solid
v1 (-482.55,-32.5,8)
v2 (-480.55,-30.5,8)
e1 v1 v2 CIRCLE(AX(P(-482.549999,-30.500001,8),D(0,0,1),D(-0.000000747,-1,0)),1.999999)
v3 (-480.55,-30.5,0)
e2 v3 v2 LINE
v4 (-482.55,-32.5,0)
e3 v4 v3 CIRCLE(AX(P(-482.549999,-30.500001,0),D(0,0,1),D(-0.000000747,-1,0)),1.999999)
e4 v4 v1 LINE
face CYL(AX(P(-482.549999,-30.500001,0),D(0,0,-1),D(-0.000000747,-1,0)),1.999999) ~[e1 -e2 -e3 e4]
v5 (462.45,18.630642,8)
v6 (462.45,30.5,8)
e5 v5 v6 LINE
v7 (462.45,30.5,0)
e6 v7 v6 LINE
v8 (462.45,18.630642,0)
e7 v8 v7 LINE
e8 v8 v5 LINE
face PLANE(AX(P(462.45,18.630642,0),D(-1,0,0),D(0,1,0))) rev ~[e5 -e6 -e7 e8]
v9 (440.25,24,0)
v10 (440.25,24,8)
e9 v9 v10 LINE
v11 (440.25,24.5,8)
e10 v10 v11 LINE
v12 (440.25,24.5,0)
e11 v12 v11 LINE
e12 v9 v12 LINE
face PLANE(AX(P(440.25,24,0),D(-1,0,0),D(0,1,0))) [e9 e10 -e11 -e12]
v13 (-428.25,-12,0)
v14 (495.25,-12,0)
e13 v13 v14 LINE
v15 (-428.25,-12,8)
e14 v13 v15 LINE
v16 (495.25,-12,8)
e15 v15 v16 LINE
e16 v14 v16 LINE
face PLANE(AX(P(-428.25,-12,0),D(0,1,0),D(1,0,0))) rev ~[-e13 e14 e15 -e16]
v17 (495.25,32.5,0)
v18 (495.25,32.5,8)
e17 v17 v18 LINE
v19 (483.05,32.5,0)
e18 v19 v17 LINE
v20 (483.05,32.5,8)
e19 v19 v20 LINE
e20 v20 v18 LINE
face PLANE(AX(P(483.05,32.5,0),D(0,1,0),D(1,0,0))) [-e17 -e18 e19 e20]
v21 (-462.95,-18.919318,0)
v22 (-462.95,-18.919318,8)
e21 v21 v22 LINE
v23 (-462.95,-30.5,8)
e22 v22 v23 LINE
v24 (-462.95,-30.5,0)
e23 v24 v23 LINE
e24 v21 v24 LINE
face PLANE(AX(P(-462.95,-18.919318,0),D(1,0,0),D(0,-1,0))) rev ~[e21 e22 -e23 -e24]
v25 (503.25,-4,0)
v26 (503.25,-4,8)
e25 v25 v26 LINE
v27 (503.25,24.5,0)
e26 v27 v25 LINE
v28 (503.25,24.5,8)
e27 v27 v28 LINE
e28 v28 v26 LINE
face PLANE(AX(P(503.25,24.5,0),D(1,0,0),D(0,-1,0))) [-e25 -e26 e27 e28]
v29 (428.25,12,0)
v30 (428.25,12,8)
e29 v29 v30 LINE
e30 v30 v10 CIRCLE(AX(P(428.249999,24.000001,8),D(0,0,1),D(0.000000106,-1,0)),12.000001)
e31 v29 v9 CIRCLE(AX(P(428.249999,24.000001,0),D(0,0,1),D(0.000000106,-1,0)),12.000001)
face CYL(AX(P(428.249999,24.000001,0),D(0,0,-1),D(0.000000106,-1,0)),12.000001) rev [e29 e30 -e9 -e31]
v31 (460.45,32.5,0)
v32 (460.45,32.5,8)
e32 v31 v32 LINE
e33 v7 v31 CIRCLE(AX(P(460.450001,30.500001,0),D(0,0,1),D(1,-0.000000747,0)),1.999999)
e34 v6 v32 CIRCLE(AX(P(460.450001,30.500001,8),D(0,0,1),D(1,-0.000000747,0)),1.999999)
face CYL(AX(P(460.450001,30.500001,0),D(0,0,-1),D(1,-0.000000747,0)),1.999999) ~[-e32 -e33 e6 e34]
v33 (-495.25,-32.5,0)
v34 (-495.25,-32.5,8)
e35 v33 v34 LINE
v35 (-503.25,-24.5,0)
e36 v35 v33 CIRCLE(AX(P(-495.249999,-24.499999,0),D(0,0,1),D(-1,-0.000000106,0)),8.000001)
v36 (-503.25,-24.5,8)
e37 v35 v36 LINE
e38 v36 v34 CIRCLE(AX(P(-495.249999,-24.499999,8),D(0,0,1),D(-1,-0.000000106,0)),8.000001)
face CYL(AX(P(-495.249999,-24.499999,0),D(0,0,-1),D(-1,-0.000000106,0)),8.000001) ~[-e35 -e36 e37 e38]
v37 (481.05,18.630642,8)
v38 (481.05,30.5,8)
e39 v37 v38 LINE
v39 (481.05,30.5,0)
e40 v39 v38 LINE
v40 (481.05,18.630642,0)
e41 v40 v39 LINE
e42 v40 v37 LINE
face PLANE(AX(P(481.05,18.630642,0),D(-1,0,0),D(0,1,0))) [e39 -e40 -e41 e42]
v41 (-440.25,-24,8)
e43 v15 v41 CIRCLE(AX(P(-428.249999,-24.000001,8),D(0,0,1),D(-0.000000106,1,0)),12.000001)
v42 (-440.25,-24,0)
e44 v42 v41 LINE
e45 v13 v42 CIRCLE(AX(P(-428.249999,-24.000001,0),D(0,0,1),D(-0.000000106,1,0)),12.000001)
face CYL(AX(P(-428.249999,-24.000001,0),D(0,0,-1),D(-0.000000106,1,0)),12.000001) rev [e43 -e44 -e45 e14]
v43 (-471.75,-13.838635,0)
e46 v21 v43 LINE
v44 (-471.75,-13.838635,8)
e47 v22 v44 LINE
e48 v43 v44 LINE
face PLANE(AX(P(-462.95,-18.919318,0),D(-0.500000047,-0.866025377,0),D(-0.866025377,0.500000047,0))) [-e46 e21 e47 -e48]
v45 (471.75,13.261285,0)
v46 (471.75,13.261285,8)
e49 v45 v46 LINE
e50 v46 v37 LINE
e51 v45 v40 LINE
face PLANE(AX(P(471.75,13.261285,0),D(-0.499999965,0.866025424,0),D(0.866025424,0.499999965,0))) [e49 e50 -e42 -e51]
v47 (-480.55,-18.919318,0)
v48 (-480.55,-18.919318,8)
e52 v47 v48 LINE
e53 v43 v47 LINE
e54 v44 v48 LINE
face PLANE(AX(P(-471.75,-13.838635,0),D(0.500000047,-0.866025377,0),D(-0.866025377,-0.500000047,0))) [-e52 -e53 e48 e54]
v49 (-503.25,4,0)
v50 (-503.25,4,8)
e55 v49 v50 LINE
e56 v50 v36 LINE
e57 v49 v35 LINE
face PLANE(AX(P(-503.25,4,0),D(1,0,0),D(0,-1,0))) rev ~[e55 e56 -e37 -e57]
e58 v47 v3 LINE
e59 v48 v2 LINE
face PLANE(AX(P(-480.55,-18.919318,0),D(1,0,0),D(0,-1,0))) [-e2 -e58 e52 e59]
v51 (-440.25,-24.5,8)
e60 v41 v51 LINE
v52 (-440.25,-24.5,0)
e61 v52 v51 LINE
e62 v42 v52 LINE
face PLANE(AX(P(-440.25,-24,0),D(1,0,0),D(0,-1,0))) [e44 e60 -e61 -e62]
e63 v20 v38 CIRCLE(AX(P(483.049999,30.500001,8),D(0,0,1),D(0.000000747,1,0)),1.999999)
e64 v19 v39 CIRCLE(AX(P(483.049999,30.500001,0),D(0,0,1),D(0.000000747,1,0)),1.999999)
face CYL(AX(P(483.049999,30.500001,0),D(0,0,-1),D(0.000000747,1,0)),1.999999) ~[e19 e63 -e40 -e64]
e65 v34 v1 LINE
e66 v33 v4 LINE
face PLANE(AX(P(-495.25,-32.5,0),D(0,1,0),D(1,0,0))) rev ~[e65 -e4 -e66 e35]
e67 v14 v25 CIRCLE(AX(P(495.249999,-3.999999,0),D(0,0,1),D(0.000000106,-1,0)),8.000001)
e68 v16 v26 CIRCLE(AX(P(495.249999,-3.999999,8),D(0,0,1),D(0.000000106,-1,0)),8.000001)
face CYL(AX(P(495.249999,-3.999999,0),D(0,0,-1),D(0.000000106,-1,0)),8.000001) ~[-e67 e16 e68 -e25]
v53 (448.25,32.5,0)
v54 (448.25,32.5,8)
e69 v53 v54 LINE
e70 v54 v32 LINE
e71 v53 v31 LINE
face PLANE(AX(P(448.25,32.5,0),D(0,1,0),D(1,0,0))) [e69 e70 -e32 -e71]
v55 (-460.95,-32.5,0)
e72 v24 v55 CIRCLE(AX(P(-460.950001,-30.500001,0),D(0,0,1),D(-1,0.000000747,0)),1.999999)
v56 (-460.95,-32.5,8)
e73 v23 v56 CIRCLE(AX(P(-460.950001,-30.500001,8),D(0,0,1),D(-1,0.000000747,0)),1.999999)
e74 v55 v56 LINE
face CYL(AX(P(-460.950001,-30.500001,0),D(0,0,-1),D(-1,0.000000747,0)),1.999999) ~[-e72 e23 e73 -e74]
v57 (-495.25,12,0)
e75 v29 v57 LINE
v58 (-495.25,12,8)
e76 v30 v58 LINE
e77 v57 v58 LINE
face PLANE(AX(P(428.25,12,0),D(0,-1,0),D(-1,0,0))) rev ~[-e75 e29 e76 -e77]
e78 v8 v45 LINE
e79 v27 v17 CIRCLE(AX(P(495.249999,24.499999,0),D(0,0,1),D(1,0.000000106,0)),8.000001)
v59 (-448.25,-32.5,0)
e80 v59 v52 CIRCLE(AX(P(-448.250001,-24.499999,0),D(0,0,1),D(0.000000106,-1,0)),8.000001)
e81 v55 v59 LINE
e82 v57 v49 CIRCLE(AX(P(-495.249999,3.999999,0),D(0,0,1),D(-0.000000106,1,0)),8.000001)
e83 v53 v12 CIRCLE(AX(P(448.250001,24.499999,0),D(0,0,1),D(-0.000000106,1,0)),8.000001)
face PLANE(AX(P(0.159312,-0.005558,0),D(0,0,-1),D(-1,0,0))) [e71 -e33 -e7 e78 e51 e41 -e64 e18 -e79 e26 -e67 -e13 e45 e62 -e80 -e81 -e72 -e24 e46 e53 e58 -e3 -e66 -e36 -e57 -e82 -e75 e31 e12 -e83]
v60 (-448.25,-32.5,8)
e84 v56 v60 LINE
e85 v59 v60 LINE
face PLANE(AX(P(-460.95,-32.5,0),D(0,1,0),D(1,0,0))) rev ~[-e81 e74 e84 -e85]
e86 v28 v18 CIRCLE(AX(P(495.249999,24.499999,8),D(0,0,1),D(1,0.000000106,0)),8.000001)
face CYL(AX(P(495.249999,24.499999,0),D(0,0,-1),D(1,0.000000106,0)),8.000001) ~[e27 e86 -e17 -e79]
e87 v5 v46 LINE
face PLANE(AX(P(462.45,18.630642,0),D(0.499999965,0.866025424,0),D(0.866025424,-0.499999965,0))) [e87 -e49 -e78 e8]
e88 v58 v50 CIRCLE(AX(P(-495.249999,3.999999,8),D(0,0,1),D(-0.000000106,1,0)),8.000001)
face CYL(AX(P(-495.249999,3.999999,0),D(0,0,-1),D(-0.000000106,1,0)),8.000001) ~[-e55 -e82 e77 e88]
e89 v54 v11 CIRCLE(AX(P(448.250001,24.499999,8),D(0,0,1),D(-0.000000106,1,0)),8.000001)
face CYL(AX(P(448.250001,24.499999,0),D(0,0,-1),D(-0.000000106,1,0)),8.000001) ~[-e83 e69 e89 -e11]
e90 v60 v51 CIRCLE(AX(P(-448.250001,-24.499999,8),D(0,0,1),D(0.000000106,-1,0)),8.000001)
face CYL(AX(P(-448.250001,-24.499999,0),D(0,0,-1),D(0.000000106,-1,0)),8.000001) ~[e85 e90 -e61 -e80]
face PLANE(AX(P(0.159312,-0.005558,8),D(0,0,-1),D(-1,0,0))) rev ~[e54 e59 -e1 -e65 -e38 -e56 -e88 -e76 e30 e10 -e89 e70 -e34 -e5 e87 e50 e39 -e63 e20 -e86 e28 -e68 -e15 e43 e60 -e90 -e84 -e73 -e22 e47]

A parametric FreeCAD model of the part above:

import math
import FreeCAD as App
import Part
import Sketcher
Q = App.Units.Quantity

doc = App.newDocument("Part")
body = doc.addObject("PartDesign::Body", "Body")

# Sketch on XY plane
sketch1 = doc.addObject("Sketcher::SketchObject", "Sketch")
body.addObject(sketch1)
sketch1.AttachmentSupport = (doc.XY_Plane, [""])
sketch1.MapMode = "FlatFace"
sketch1.addGeometry(Part.LineSegment(App.Vector(428.2, 12, 0), App.Vector(-495.2, 12, 0)), False)
sketch1.addGeometry(Part.ArcOfCircle(Part.Circle(App.Vector(-495.2, 4, 0), App.Vector(0, 0, 1), 8), math.radians(90), math.radians(180)), False)
sketch1.addGeometry(Part.LineSegment(App.Vector(-503.2, 4, 0), App.Vector(-503.2, -24.5, 0)), False)
sketch1.addGeometry(Part.ArcOfCircle(Part.Circle(App.Vector(-495.2, -24.5, 0), App.Vector(0, 0, 1), 8), math.radians(-180), math.radians(-90)), False)
sketch1.addGeometry(Part.LineSegment(App.Vector(-495.2, -32.5, 0), App.Vector(-482.6, -32.5, 0)), False)
sketch1.addGeometry(Part.ArcOfCircle(Part.Circle(App.Vector(-482.5, -30.5, 0), App.Vector(0, 0, 1), 2), math.radians(-90), math.radians(0)), False)
sketch1.addGeometry(Part.LineSegment(App.Vector(-480.6, -30.5, 0), App.Vector(-480.6, -18.9, 0)), False)
sketch1.addGeometry(Part.LineSegment(App.Vector(-480.6, -18.9, 0), App.Vector(-471.8, -13.8, 0)), False)
sketch1.addGeometry(Part.LineSegment(App.Vector(-471.8, -13.8, 0), App.Vector(-462.9, -18.9, 0)), False)
sketch1.addGeometry(Part.LineSegment(App.Vector(-462.9, -18.9, 0), App.Vector(-462.9, -30.5, 0)), False)
sketch1.addGeometry(Part.ArcOfCircle(Part.Circle(App.Vector(-461, -30.5, 0), App.Vector(0, 0, 1), 2), math.radians(180), math.radians(270)), False)
sketch1.addGeometry(Part.LineSegment(App.Vector(-460.9, -32.5, 0), App.Vector(-448.2, -32.5, 0)), False)
sketch1.addGeometry(Part.ArcOfCircle(Part.Circle(App.Vector(-448.3, -24.5, 0), App.Vector(0, 0, 1), 8), math.radians(-90), math.radians(0)), False)
sketch1.addGeometry(Part.LineSegment(App.Vector(-440.2, -24.5, 0), App.Vector(-440.2, -24, 0)), False)
sketch1.addGeometry(Part.ArcOfCircle(Part.Circle(App.Vector(-428.2, -24, 0), App.Vector(0, 0, 1), 12), math.radians(90), math.radians(180)), False)
sketch1.addGeometry(Part.LineSegment(App.Vector(-428.2, -12, 0), App.Vector(495.2, -12, 0)), False)
sketch1.addGeometry(Part.ArcOfCircle(Part.Circle(App.Vector(495.2, -4, 0), App.Vector(0, 0, 1), 8), math.radians(-90), math.radians(0)), False)
sketch1.addGeometry(Part.LineSegment(App.Vector(503.2, -4, 0), App.Vector(503.2, 24.5, 0)), False)
sketch1.addGeometry(Part.ArcOfCircle(Part.Circle(App.Vector(495.2, 24.5, 0), App.Vector(0, 0, 1), 8), math.radians(0), math.radians(90)), False)
sketch1.addGeometry(Part.LineSegment(App.Vector(495.2, 32.5, 0), App.Vector(483.1, 32.5, 0)), False)
sketch1.addGeometry(Part.ArcOfCircle(Part.Circle(App.Vector(483, 30.5, 0), App.Vector(0, 0, 1), 2), math.radians(90), math.radians(180)), False)
sketch1.addGeometry(Part.LineSegment(App.Vector(481.1, 30.5, 0), App.Vector(481.1, 18.6, 0)), False)
sketch1.addGeometry(Part.LineSegment(App.Vector(481.1, 18.6, 0), App.Vector(471.8, 13.3, 0)), False)
sketch1.addGeometry(Part.LineSegment(App.Vector(471.8, 13.3, 0), App.Vector(462.4, 18.6, 0)), False)
sketch1.addGeometry(Part.LineSegment(App.Vector(462.4, 18.6, 0), App.Vector(462.4, 30.5, 0)), False)
sketch1.addGeometry(Part.ArcOfCircle(Part.Circle(App.Vector(460.5, 30.5, 0), App.Vector(0, 0, 1), 2), math.radians(0), math.radians(90)), False)
sketch1.addGeometry(Part.LineSegment(App.Vector(460.4, 32.5, 0), App.Vector(448.2, 32.5, 0)), False)
sketch1.addGeometry(Part.ArcOfCircle(Part.Circle(App.Vector(448.3, 24.5, 0), App.Vector(0, 0, 1), 8), math.radians(90), math.radians(180)), False)
sketch1.addGeometry(Part.LineSegment(App.Vector(440.2, 24.5, 0), App.Vector(440.2, 24, 0)), False)
sketch1.addGeometry(Part.ArcOfCircle(Part.Circle(App.Vector(428.2, 24, 0), App.Vector(0, 0, 1), 12), math.radians(-90), math.radians(0)), False)
sketch1.addConstraint(Sketcher.Constraint("Tangent", 0, 2, 1, 1))
sketch1.addConstraint(Sketcher.Constraint("Tangent", 1, 2, 2, 1))
sketch1.addConstraint(Sketcher.Constraint("Tangent", 2, 2, 3, 1))
sketch1.addConstraint(Sketcher.Constraint("Tangent", 3, 2, 4, 1))
sketch1.addConstraint(Sketcher.Constraint("Tangent", 4, 2, 5, 1))
sketch1.addConstraint(Sketcher.Constraint("Tangent", 5, 2, 6, 1))
sketch1.addConstraint(Sketcher.Constraint("Coincident", 6, 2, 7, 1))
sketch1.addConstraint(Sketcher.Constraint("Coincident", 7, 2, 8, 1))
sketch1.addConstraint(Sketcher.Constraint("Coincident", 8, 2, 9, 1))
sketch1.addConstraint(Sketcher.Constraint("Tangent", 9, 2, 10, 1))
sketch1.addConstraint(Sketcher.Constraint("Tangent", 10, 2, 11, 1))
sketch1.addConstraint(Sketcher.Constraint("Tangent", 11, 2, 12, 1))
sketch1.addConstraint(Sketcher.Constraint("Tangent", 12, 2, 13, 1))
sketch1.addConstraint(Sketcher.Constraint("Tangent", 13, 2, 14, 2))
sketch1.addConstraint(Sketcher.Constraint("Tangent", 14, 1, 15, 1))
sketch1.addConstraint(Sketcher.Constraint("Tangent", 15, 2, 16, 1))
sketch1.addConstraint(Sketcher.Constraint("Tangent", 16, 2, 17, 1))
sketch1.addConstraint(Sketcher.Constraint("Tangent", 17, 2, 18, 1))
sketch1.addConstraint(Sketcher.Constraint("Tangent", 18, 2, 19, 1))
sketch1.addConstraint(Sketcher.Constraint("Tangent", 19, 2, 20, 1))
sketch1.addConstraint(Sketcher.Constraint("Tangent", 20, 2, 21, 1))
sketch1.addConstraint(Sketcher.Constraint("Coincident", 21, 2, 22, 1))
sketch1.addConstraint(Sketcher.Constraint("Coincident", 22, 2, 23, 1))
sketch1.addConstraint(Sketcher.Constraint("Coincident", 23, 2, 24, 1))
sketch1.addConstraint(Sketcher.Constraint("Tangent", 24, 2, 25, 1))
sketch1.addConstraint(Sketcher.Constraint("Tangent", 25, 2, 26, 1))
sketch1.addConstraint(Sketcher.Constraint("Tangent", 26, 2, 27, 1))
sketch1.addConstraint(Sketcher.Constraint("Tangent", 27, 2, 28, 1))
sketch1.addConstraint(Sketcher.Constraint("Tangent", 28, 2, 29, 2))
sketch1.addConstraint(Sketcher.Constraint("Tangent", 29, 1, 0, 1))
sketch1.addConstraint(Sketcher.Constraint("Horizontal", 0))
sketch1.addConstraint(Sketcher.Constraint("Vertical", 2))
sketch1.addConstraint(Sketcher.Constraint("Horizontal", 4))
sketch1.addConstraint(Sketcher.Constraint("Vertical", 6))
sketch1.addConstraint(Sketcher.Constraint("Vertical", 9))
sketch1.addConstraint(Sketcher.Constraint("Horizontal", 11))
sketch1.addConstraint(Sketcher.Constraint("Vertical", 13))
sketch1.addConstraint(Sketcher.Constraint("Horizontal", 15))
sketch1.addConstraint(Sketcher.Constraint("Vertical", 17))
sketch1.addConstraint(Sketcher.Constraint("Horizontal", 19))
sketch1.addConstraint(Sketcher.Constraint("Vertical", 21))
sketch1.addConstraint(Sketcher.Constraint("Vertical", 24))
sketch1.addConstraint(Sketcher.Constraint("Horizontal", 26))
sketch1.addConstraint(Sketcher.Constraint("Vertical", 28))
sketch1.addConstraint(Sketcher.Constraint("Equal", 1, 3))
sketch1.addConstraint(Sketcher.Constraint("Equal", 5, 10))
sketch1.addConstraint(Sketcher.Constraint("Equal", 3, 12))
sketch1.addConstraint(Sketcher.Constraint("Equal", 12, 16))
sketch1.addConstraint(Sketcher.Constraint("Equal", 16, 18))
sketch1.addConstraint(Sketcher.Constraint("Equal", 10, 20))
sketch1.addConstraint(Sketcher.Constraint("Equal", 20, 25))
sketch1.addConstraint(Sketcher.Constraint("Equal", 18, 27))
sketch1.addConstraint(Sketcher.Constraint("Equal", 14, 29))
sketch1.addConstraint(Sketcher.Constraint("Symmetric", 1, 3, 16, 3, -1, 1))
sketch1.addConstraint(Sketcher.Constraint("Symmetric", 12, 3, 27, 3, -1, 1))
sketch1.addConstraint(Sketcher.Constraint("Parallel", 7, 22))
sketch1.addConstraint(Sketcher.Constraint("Parallel", 8, 23))
sketch1.addConstraint(Sketcher.Constraint("Horizontal", 5, 3, 10, 3))
sketch1.addConstraint(Sketcher.Constraint("Horizontal", 20, 3, 25, 3))
sketch1.addConstraint(Sketcher.Constraint("Horizontal", 6, 2, 8, 2))
sketch1.addConstraint(Sketcher.Constraint("Horizontal", 21, 2, 23, 2))
sketch1.addConstraint(Sketcher.Constraint("Equal", 4, 11))
sketch1.addConstraint(Sketcher.Constraint("Equal", 19, 26))
sketch1.addConstraint(Sketcher.Constraint("Equal", 7, 8))
sketch1.addConstraint(Sketcher.Constraint("Radius", 1, Q("8.000001 mm")))
sketch1.addConstraint(Sketcher.Constraint("Radius", 5, Q("1.999999 mm")))
sketch1.addConstraint(Sketcher.Constraint("Radius", 14, Q("12.000001 mm")))
sketch1.addConstraint(Sketcher.Constraint("Angle", 7, Q("30.000003 deg")))
sketch1.addConstraint(Sketcher.Constraint("DistanceX", 0, 2, 0, 1, Q("923.5 mm")))
sketch1.addConstraint(Sketcher.Constraint("DistanceX", 4, 1, 4, 2, Q("12.7 mm")))
sketch1.addConstraint(Sketcher.Constraint("DistanceX", 19, 2, 19, 1, Q("12.2 mm")))
sketch1.addConstraint(Sketcher.Constraint("DistanceY", 2, 2, 2, 1, Q("28.5 mm")))
sketch1.addConstraint(Sketcher.Constraint("DistanceY", 13, 1, 13, 2, Q("0.5 mm")))
sketch1.addConstraint(Sketcher.Constraint("DistanceX", 3, 3, 12, 3, Q("46.999998 mm")))
sketch1.addConstraint(Sketcher.Constraint("DistanceY", 6, 1, 6, 2, Q("11.580682 mm")))
sketch1.addConstraint(Sketcher.Constraint("DistanceY", 21, 2, 21, 1, Q("11.869358 mm")))
pad1 = doc.addObject("PartDesign::Pad", "Pad")
body.addObject(pad1)
pad1.Profile = sketch1
pad1.Length = 8

doc.recompute()
